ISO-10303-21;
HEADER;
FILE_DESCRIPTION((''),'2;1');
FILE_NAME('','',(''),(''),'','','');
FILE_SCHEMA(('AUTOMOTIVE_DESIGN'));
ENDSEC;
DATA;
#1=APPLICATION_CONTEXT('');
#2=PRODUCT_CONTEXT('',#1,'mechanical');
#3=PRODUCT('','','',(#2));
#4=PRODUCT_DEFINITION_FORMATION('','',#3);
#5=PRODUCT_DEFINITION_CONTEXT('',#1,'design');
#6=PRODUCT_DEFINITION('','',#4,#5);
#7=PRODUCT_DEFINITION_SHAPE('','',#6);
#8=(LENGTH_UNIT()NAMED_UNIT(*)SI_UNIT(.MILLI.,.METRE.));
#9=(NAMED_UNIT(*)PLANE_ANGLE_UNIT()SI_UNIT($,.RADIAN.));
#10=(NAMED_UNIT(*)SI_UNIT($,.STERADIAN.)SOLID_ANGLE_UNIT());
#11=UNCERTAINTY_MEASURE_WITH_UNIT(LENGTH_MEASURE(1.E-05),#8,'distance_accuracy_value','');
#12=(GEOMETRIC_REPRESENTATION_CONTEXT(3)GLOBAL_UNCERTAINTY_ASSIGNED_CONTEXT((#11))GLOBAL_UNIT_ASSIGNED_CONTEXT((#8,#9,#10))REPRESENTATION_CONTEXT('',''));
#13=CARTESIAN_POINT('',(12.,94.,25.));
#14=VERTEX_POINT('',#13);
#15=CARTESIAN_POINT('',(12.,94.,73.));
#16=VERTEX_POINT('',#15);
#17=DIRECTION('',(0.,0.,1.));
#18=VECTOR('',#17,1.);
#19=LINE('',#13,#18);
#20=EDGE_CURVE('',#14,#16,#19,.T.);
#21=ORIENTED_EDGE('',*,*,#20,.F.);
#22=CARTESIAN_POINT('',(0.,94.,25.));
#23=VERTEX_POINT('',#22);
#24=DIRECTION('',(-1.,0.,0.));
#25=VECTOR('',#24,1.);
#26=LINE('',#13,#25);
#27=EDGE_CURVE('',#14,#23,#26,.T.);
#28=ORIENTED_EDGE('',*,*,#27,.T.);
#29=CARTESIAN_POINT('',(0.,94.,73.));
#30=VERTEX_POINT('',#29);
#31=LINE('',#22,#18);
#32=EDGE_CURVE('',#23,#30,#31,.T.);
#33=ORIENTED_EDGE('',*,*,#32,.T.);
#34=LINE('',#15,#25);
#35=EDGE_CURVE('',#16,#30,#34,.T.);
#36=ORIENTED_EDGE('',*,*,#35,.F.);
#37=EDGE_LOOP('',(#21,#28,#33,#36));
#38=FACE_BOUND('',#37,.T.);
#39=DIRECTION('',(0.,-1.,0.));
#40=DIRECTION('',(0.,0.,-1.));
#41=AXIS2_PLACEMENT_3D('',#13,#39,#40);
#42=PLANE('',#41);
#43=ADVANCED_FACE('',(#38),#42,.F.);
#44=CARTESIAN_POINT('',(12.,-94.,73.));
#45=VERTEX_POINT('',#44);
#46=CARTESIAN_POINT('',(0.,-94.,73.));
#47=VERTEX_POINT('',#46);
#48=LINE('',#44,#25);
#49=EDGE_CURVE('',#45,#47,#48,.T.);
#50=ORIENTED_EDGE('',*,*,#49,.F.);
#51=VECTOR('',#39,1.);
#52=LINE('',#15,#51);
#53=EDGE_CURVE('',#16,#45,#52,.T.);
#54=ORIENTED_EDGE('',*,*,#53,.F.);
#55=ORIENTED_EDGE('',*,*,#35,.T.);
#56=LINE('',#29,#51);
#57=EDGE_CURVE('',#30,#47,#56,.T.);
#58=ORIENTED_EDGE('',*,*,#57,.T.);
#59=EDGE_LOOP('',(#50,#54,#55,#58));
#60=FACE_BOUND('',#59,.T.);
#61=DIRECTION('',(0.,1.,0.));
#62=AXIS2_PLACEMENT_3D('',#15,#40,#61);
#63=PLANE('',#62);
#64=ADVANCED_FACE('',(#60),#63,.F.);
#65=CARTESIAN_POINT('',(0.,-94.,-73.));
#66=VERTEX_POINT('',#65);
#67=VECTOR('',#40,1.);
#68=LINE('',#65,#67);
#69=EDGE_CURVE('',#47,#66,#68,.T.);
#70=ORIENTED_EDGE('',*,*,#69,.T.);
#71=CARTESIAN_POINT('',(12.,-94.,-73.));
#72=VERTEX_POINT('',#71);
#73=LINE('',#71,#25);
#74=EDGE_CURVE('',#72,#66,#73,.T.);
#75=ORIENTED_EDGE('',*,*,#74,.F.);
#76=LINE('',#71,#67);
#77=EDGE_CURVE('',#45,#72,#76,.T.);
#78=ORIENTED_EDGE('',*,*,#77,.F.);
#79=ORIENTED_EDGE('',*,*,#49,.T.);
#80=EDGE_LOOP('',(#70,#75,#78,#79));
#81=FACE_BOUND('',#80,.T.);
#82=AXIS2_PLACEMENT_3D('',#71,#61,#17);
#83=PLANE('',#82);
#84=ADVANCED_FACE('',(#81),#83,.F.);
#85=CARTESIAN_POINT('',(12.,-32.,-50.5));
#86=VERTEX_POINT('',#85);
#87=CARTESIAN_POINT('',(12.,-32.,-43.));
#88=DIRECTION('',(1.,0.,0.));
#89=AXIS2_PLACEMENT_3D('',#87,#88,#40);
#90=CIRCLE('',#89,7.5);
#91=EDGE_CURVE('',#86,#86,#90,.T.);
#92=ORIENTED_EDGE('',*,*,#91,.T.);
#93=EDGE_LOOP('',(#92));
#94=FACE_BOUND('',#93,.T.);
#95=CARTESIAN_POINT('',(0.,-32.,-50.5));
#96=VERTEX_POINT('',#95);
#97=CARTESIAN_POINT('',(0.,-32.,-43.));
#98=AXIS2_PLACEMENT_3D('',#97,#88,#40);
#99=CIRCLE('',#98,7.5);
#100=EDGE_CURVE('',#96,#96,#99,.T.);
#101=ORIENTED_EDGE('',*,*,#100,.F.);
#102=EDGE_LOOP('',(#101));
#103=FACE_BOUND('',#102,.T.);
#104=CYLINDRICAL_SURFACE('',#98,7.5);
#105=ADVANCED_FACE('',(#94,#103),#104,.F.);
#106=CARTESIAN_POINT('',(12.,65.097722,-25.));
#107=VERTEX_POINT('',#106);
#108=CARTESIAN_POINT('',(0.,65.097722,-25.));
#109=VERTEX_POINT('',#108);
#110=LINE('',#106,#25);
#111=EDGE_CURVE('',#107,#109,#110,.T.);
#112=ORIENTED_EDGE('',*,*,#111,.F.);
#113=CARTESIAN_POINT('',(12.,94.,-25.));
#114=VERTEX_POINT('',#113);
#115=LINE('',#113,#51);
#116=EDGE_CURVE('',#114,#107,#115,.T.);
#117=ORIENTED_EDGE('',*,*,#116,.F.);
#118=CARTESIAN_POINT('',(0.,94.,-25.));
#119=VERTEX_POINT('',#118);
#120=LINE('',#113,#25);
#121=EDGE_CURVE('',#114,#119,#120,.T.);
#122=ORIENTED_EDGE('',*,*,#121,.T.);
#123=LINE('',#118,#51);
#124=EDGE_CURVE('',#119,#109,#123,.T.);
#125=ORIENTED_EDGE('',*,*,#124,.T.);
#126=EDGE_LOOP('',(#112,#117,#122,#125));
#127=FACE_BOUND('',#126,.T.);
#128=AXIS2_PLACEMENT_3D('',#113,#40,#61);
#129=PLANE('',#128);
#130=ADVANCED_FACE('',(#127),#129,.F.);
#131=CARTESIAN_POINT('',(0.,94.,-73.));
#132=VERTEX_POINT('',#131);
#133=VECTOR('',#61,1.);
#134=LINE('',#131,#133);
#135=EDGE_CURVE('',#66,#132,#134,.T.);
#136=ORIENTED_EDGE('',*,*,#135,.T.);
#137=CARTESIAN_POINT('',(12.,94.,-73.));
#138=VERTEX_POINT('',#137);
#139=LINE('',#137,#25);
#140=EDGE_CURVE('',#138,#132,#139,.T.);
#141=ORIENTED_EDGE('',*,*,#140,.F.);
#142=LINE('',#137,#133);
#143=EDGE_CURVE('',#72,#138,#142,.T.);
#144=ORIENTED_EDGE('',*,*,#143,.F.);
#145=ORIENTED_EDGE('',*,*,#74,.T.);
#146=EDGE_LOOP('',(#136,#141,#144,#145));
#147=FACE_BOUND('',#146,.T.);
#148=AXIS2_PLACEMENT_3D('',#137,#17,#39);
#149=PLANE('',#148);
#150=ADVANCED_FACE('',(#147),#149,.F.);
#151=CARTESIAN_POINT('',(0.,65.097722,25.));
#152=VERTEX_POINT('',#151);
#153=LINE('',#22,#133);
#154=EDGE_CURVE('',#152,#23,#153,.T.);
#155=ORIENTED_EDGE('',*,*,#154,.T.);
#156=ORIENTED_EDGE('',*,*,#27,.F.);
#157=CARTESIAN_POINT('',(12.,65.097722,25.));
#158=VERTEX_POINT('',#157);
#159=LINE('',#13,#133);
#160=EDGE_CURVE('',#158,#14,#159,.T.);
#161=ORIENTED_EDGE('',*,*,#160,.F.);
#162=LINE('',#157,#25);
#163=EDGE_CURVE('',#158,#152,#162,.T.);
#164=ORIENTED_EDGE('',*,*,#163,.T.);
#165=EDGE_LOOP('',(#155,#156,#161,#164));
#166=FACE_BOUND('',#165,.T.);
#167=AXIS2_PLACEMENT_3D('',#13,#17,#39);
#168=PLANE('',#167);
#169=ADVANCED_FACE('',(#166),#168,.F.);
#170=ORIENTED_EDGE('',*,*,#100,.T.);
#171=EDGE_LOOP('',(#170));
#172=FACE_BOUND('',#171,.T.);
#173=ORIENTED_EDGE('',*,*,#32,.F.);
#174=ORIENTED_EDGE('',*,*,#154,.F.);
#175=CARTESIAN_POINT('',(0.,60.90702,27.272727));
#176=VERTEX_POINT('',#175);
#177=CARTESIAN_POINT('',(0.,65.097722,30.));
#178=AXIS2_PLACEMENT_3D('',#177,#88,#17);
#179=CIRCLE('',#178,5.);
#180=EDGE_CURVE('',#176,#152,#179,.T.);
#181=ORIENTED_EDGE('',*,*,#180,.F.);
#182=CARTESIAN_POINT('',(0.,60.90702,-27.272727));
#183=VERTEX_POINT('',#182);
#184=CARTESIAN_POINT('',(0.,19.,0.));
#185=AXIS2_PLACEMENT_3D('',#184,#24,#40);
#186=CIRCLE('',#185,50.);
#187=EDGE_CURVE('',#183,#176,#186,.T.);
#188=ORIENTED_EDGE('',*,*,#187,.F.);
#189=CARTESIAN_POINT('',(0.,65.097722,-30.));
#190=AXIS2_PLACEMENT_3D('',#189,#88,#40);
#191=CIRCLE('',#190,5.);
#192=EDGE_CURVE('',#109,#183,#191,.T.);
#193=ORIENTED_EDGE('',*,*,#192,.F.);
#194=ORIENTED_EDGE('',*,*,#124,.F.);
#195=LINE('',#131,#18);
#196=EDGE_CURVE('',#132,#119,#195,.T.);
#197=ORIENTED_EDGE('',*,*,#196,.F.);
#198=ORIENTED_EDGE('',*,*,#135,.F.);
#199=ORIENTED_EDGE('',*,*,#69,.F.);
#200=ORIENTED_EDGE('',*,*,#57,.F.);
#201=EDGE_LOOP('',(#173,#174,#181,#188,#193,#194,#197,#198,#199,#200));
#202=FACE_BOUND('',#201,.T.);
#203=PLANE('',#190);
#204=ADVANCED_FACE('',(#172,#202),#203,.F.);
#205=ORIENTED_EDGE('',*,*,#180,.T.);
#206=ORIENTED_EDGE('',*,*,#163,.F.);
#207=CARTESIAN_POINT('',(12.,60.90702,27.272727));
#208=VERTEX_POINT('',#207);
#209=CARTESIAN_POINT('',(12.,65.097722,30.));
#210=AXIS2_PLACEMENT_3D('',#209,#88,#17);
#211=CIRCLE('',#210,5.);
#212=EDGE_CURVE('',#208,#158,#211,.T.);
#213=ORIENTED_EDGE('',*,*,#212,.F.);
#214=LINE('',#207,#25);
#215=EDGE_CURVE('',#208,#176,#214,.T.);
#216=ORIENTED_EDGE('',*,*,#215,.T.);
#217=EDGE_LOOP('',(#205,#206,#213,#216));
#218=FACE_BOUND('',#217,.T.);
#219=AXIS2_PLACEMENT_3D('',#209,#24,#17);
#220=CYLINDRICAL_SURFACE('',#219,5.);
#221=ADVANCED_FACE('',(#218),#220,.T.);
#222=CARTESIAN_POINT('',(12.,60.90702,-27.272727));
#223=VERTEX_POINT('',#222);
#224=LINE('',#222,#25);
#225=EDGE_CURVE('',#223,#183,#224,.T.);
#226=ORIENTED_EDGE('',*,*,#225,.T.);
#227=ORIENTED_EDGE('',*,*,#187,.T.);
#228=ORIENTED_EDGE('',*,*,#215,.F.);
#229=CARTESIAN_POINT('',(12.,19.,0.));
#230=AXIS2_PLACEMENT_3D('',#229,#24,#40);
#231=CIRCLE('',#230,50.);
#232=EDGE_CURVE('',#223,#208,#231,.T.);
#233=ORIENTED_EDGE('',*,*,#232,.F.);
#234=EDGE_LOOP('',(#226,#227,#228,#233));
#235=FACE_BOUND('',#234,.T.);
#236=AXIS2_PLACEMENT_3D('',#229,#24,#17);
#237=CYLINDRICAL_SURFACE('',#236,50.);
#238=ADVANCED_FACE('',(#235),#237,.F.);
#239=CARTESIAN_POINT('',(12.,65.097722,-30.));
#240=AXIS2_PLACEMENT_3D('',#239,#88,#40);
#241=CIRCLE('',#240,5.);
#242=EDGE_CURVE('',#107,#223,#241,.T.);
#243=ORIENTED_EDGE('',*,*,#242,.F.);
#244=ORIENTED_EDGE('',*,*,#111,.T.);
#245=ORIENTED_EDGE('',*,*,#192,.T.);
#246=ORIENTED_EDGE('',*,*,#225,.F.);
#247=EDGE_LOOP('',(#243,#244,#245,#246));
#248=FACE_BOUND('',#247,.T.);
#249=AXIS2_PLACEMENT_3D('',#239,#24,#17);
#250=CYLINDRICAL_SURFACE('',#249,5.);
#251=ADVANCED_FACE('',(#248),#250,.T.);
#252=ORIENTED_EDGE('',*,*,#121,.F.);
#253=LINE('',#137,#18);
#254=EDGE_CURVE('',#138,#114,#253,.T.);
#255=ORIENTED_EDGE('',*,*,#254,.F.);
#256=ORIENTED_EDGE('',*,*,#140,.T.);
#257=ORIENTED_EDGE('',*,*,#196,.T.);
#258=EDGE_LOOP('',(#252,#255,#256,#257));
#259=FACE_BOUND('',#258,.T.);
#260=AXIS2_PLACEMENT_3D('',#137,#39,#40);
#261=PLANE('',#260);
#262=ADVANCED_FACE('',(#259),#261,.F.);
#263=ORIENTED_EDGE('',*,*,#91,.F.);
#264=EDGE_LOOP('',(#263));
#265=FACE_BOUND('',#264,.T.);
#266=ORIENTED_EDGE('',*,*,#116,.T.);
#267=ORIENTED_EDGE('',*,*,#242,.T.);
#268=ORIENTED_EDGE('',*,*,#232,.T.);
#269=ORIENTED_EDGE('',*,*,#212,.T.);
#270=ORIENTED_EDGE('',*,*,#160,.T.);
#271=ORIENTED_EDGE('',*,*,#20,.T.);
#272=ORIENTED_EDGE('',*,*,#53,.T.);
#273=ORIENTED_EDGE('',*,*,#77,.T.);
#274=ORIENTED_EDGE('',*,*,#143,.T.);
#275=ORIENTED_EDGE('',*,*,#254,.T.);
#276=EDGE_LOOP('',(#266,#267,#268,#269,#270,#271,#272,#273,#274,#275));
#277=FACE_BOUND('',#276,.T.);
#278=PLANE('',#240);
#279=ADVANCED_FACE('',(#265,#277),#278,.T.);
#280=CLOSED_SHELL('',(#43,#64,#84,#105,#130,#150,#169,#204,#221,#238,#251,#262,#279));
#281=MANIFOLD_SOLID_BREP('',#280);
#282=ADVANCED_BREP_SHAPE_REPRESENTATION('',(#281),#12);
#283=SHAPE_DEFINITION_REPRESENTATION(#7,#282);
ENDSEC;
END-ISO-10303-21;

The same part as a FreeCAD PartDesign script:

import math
import FreeCAD as App
import Part
import Sketcher

V = App.Vector
Q = App.Units.Quantity

doc = App.newDocument("Part")
body = doc.addObject("PartDesign::Body", "Body")

# Sketch on YZ plane
sketch1 = body.newObject("Sketcher::SketchObject", "Sketch")
sketch1.AttachmentSupport = (doc.getObject("YZ_Plane"), [""])
sketch1.MapMode = "FlatFace"
sketch1.addGeometry(Part.LineSegment(V(94, -73, 0), V(94, -25, 0)), False)
sketch1.addGeometry(Part.LineSegment(V(94, -25, 0), V(65.1, -25, 0)), False)
sketch1.addGeometry(Part.ArcOfCircle(Part.Circle(V(65.1, -30, 0), V(0, 0, 1), 5), math.radians(90), math.radians(147)), False)
sketch1.addGeometry(Part.ArcOfCircle(Part.Circle(V(19, 0, 0), V(0, 0, 1), 50), math.radians(33), math.radians(327)), False)
sketch1.addGeometry(Part.ArcOfCircle(Part.Circle(V(65.1, 30, 0), V(0, 0, 1), 5), math.radians(-147), math.radians(-90)), False)
sketch1.addGeometry(Part.LineSegment(V(65.1, 25, 0), V(94, 25, 0)), False)
sketch1.addGeometry(Part.LineSegment(V(94, 25, 0), V(94, 73, 0)), False)
sketch1.addGeometry(Part.LineSegment(V(94, 73, 0), V(-94, 73, 0)), False)
sketch1.addGeometry(Part.LineSegment(V(-94, 73, 0), V(-94, -73, 0)), False)
sketch1.addGeometry(Part.LineSegment(V(-94, -73, 0), V(94, -73, 0)), False)
sketch1.addConstraint(Sketcher.Constraint("Coincident", 0, 2, 1, 1))
sketch1.addConstraint(Sketcher.Constraint("Tangent", 1, 2, 2, 1))
sketch1.addConstraint(Sketcher.Constraint("Tangent", 2, 2, 3, 2))
sketch1.addConstraint(Sketcher.Constraint("Tangent", 3, 1, 4, 1))
sketch1.addConstraint(Sketcher.Constraint("Tangent", 4, 2, 5, 1))
sketch1.addConstraint(Sketcher.Constraint("Coincident", 5, 2, 6, 1))
sketch1.addConstraint(Sketcher.Constraint("Coincident", 6, 2, 7, 1))
sketch1.addConstraint(Sketcher.Constraint("Coincident", 7, 2, 8, 1))
sketch1.addConstraint(Sketcher.Constraint("Coincident", 8, 2, 9, 1))
sketch1.addConstraint(Sketcher.Constraint("Coincident", 9, 2, 0, 1))
sketch1.addConstraint(Sketcher.Constraint("Vertical", 0))
sketch1.addConstraint(Sketcher.Constraint("Horizontal", 1))
sketch1.addConstraint(Sketcher.Constraint("Horizontal", 5))
sketch1.addConstraint(Sketcher.Constraint("Vertical", 6))
sketch1.addConstraint(Sketcher.Constraint("Horizontal", 7))
sketch1.addConstraint(Sketcher.Constraint("Vertical", 8))
sketch1.addConstraint(Sketcher.Constraint("Horizontal", 9))
sketch1.addConstraint(Sketcher.Constraint("Equal", 2, 4))
sketch1.addConstraint(Sketcher.Constraint("Symmetric", 6, 2, 8, 2, -1, 1))
sketch1.addConstraint(Sketcher.Constraint("Symmetric", 2, 3, 4, 3, -1))
sketch1.addConstraint(Sketcher.Constraint("Vertical", 0, 2, 5, 2))
sketch1.addConstraint(Sketcher.Constraint("Radius", 2, Q("5 mm")))
sketch1.addConstraint(Sketcher.Constraint("Radius", 3, Q("50 mm")))
sketch1.addConstraint(Sketcher.Constraint("DistanceX", 7, 2, 7, 1, Q("188 mm")))
sketch1.addConstraint(Sketcher.Constraint("DistanceY", 0, 1, 0, 2, Q("48 mm")))
sketch1.addConstraint(Sketcher.Constraint("DistanceY", 8, 2, 8, 1, Q("146 mm")))
sketch1.addConstraint(Sketcher.Constraint("DistanceX", -1, 1, 3, 3, Q("19 mm")))
pad1 = body.newObject("PartDesign::Pad", "Pad")
pad1.Profile = sketch1
pad1.Length = 12

# Sketch on YZ plane
sketch2 = body.newObject("Sketcher::SketchObject", "Sketch001")
sketch2.AttachmentSupport = (doc.getObject("YZ_Plane"), [""])
sketch2.MapMode = "FlatFace"
sketch2.AttachmentOffset = App.Placement(V(0, 0, 12), App.Rotation())
sketch2.addGeometry(Part.Circle(V(-32, -43, 0), V(0, 0, 1), 8), False)
sketch2.addConstraint(Sketcher.Constraint("Diameter", 0, Q("15 mm")))
sketch2.addConstraint(Sketcher.Constraint("DistanceX", 0, 3, -1, 1, Q("32 mm")))
sketch2.addConstraint(Sketcher.Constraint("DistanceY", 0, 3, -1, 1, Q("43 mm")))
pocket1 = body.newObject("PartDesign::Pocket", "Pocket")
pocket1.Profile = sketch2
pocket1.Type = "ThroughAll"

doc.recompute()
